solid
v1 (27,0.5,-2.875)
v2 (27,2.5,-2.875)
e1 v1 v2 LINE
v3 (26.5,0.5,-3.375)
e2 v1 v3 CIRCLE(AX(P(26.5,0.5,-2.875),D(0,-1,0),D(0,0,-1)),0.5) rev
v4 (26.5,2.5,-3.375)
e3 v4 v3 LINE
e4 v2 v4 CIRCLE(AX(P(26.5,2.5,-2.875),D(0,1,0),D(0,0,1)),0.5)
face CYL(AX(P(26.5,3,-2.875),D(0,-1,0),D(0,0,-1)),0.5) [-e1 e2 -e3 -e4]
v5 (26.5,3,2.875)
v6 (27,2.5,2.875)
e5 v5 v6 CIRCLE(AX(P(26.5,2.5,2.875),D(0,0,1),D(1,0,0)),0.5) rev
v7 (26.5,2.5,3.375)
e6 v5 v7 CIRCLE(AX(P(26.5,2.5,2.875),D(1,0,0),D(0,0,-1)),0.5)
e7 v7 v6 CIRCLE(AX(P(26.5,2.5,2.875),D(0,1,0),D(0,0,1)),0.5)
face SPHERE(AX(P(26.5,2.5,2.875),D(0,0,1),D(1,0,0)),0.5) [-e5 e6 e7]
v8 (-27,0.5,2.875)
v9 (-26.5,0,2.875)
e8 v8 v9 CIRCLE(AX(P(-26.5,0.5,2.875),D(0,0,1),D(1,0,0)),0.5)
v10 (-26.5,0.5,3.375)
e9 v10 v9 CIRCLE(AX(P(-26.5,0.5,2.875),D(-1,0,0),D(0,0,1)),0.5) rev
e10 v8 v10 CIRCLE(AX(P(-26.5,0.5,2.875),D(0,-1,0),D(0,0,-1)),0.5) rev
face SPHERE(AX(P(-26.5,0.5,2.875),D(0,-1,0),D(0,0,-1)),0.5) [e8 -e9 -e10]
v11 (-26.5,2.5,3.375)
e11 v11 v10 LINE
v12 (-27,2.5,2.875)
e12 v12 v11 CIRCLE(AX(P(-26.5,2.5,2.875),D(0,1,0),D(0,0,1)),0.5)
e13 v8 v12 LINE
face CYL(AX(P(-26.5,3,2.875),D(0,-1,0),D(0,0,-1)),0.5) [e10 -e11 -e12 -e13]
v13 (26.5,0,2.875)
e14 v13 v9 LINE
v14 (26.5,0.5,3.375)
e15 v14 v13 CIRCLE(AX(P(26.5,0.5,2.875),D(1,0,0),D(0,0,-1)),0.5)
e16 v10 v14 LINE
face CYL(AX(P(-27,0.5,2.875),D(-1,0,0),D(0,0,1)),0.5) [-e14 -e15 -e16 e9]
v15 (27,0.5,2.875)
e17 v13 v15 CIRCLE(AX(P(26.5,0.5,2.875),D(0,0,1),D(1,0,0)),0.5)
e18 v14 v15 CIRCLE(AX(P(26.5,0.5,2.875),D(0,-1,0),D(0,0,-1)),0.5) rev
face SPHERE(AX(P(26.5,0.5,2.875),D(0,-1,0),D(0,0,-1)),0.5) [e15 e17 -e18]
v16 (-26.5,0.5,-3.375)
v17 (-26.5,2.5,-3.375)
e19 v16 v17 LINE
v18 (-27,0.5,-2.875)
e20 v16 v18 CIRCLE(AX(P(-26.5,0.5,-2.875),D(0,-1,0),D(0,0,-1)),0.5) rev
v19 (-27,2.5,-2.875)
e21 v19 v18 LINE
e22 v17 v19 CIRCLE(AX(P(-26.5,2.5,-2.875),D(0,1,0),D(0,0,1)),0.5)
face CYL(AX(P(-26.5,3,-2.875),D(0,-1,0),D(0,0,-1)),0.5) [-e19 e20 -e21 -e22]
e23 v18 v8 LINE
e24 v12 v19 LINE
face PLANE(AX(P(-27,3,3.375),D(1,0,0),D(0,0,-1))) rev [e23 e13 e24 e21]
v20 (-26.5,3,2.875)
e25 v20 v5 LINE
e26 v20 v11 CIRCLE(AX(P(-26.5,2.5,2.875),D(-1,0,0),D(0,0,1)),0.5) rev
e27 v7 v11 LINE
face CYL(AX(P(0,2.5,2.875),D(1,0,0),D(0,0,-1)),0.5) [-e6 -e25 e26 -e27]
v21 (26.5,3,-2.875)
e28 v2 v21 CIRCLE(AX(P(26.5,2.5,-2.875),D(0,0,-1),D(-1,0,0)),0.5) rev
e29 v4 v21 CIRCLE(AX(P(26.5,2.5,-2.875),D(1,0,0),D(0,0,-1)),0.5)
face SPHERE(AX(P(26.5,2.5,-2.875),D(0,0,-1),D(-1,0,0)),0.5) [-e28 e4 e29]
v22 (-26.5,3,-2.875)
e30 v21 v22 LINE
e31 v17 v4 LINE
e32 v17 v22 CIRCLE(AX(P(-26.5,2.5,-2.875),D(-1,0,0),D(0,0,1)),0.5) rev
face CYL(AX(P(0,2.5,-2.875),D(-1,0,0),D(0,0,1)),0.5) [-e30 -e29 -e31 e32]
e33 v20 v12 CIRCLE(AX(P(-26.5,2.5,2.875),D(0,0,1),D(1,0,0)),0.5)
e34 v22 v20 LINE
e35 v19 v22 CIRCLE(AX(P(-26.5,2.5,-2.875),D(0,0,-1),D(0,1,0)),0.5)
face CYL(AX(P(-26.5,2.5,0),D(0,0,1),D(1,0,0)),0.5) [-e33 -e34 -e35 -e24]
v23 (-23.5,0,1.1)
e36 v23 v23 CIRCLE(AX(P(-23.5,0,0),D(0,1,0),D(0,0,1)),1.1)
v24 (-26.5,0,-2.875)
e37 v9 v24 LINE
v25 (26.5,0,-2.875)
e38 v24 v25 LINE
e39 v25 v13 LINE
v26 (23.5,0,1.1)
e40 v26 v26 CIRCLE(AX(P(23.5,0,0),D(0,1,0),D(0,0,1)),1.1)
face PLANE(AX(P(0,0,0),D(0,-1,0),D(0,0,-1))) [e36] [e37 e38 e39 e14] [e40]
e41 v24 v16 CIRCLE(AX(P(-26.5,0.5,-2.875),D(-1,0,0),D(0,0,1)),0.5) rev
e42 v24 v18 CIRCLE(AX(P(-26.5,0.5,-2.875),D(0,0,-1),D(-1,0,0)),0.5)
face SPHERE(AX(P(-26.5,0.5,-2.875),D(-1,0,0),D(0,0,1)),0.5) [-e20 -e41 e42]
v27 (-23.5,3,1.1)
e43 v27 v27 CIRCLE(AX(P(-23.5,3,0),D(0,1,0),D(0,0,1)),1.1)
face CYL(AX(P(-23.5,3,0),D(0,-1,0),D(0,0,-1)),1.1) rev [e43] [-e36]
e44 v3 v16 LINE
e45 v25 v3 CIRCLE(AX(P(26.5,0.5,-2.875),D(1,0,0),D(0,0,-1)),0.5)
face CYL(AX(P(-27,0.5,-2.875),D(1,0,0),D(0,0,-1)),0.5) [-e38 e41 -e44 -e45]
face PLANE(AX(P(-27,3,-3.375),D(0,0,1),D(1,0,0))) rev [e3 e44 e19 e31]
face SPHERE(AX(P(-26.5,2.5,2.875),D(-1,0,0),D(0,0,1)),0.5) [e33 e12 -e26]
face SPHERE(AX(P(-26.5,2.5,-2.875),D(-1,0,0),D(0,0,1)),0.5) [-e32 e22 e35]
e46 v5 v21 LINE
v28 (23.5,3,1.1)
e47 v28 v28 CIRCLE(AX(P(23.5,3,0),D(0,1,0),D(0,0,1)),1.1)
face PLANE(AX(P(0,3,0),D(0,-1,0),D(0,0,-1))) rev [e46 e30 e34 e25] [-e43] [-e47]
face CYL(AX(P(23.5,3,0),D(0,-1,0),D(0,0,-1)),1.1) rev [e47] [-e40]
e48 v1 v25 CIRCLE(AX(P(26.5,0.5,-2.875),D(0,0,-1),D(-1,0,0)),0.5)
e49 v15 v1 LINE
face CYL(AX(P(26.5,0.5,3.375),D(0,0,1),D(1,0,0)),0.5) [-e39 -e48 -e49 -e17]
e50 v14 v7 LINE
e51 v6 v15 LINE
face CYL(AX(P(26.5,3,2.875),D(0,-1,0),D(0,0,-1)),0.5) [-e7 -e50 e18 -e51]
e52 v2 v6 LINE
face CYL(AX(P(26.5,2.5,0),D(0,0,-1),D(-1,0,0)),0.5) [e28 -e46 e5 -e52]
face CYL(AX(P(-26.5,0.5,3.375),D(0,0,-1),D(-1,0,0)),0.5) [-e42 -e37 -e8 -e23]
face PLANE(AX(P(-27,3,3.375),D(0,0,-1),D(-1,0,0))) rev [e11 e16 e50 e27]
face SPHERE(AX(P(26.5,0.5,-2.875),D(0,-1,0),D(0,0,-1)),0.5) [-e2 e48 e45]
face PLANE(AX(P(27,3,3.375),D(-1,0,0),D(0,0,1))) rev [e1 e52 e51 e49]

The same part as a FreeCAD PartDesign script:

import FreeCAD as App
import Part
import Sketcher
Q = App.Units.Quantity


def edges_at(feature, points):
    """Names of the edges that pass closest to the given points."""
    edges = feature.Shape.Edges
    near = lambda p: min(range(len(edges)), key=lambda i: edges[i].distToShape(Part.Vertex(*p))[0])
    return sorted({f"Edge{near(p) + 1}" for p in points})


def add_polygon(sketch, points):
    """Adds a closed chain of lines whose ends are joined by coincident constraints."""
    first, n = sketch.GeometryCount, len(points)
    for a, b in zip(points, points[1:] + points[:1]):
        sketch.addGeometry(Part.LineSegment(App.Vector(*a, 0), App.Vector(*b, 0)), False)
    for i in range(n):
        sketch.addConstraint(Sketcher.Constraint("Coincident", first + i, 2, first + (i + 1) % n, 1))

doc = App.newDocument("Part")
params = doc.addObject("Spreadsheet::Sheet", "Params")
for row, (alias, value) in enumerate([
    ("sketch1_diameter", "2.2 mm"),
    ("sketch1_width", "54 mm"),
    ("sketch1_height", "6.75 mm"),
    ("pad1_length", "3 mm"),
    ("fillet_radius", "0.5 mm"),
], start=1):
    params.set(f"A{row}", alias)
    params.set(f"B{row}", "=" + value)
    params.setAlias(f"B{row}", alias)

body = doc.addObject("PartDesign::Body", "Body")

sketch1 = body.newObject("Sketcher::SketchObject", "Sketch")
sketch1.AttachmentSupport = (doc.getObject("XZ_Plane"), [""])
sketch1.MapMode = "FlatFace"
add_polygon(sketch1, [(-27, -3.4), (-27, 3.4), (27, 3.4), (27, -3.4)])
sketch1.addGeometry(Part.Circle(App.Vector(-23.5, 0, 0), App.Vector(0, 0, 1), 1.1), False)
sketch1.addGeometry(Part.Circle(App.Vector(23.5, 0, 0), App.Vector(0, 0, 1), 1.1), False)
sketch1.addConstraint([
    Sketcher.Constraint("Vertical", 0),
    Sketcher.Constraint("Horizontal", 1),
    Sketcher.Constraint("Vertical", 2),
    Sketcher.Constraint("Horizontal", 3),
    Sketcher.Constraint("Equal", 4, 5),
    Sketcher.Constraint("Symmetric", 4, 3, 5, 3, -1, 1),
    Sketcher.Constraint("Symmetric", 0, 2, 2, 2, -1, 1),
    Sketcher.Constraint("PointOnObject", 4, 3, -1),
    Sketcher.Constraint("Diameter", 4, Q("2.2 mm")),
    Sketcher.Constraint("DistanceX", 1, 1, 1, 2, Q("54 mm")),
    Sketcher.Constraint("DistanceX", 4, 3, 5, 3, Q("47 mm")),
    Sketcher.Constraint("DistanceY", 0, 1, 0, 2, Q("6.75 mm")),
])
sketch1.setExpression("Constraints[12]", "Params.sketch1_diameter")
sketch1.setExpression("Constraints[13]", "Params.sketch1_width")
sketch1.setExpression("Constraints[15]", "Params.sketch1_height")
pad1 = body.newObject("PartDesign::Pad", "Pad")
pad1.Profile = sketch1
pad1.setExpression("Length", "Params.pad1_length")
pad1.Reversed = True
doc.recompute()

fillet = body.newObject("PartDesign::Fillet", "Fillet")
fillet.Base = (pad1, edges_at(pad1, [
    (-27, 3, 0),
    (0, 3, 3.375),
    (27, 3, 0),
    (0, 0, 3.375),
    (-27, 0, 0),
    (0, 0, -3.375),
    (27, 0, 0),
    (27, 1.5, 3.375),
    (-27, 1.5, 3.375),
    (-27, 1.5, -3.375),
    (27, 1.5, -3.375),
    (0, 3, -3.375),
]))
fillet.setExpression("Radius", "Params.fillet_radius")

doc.recompute()
